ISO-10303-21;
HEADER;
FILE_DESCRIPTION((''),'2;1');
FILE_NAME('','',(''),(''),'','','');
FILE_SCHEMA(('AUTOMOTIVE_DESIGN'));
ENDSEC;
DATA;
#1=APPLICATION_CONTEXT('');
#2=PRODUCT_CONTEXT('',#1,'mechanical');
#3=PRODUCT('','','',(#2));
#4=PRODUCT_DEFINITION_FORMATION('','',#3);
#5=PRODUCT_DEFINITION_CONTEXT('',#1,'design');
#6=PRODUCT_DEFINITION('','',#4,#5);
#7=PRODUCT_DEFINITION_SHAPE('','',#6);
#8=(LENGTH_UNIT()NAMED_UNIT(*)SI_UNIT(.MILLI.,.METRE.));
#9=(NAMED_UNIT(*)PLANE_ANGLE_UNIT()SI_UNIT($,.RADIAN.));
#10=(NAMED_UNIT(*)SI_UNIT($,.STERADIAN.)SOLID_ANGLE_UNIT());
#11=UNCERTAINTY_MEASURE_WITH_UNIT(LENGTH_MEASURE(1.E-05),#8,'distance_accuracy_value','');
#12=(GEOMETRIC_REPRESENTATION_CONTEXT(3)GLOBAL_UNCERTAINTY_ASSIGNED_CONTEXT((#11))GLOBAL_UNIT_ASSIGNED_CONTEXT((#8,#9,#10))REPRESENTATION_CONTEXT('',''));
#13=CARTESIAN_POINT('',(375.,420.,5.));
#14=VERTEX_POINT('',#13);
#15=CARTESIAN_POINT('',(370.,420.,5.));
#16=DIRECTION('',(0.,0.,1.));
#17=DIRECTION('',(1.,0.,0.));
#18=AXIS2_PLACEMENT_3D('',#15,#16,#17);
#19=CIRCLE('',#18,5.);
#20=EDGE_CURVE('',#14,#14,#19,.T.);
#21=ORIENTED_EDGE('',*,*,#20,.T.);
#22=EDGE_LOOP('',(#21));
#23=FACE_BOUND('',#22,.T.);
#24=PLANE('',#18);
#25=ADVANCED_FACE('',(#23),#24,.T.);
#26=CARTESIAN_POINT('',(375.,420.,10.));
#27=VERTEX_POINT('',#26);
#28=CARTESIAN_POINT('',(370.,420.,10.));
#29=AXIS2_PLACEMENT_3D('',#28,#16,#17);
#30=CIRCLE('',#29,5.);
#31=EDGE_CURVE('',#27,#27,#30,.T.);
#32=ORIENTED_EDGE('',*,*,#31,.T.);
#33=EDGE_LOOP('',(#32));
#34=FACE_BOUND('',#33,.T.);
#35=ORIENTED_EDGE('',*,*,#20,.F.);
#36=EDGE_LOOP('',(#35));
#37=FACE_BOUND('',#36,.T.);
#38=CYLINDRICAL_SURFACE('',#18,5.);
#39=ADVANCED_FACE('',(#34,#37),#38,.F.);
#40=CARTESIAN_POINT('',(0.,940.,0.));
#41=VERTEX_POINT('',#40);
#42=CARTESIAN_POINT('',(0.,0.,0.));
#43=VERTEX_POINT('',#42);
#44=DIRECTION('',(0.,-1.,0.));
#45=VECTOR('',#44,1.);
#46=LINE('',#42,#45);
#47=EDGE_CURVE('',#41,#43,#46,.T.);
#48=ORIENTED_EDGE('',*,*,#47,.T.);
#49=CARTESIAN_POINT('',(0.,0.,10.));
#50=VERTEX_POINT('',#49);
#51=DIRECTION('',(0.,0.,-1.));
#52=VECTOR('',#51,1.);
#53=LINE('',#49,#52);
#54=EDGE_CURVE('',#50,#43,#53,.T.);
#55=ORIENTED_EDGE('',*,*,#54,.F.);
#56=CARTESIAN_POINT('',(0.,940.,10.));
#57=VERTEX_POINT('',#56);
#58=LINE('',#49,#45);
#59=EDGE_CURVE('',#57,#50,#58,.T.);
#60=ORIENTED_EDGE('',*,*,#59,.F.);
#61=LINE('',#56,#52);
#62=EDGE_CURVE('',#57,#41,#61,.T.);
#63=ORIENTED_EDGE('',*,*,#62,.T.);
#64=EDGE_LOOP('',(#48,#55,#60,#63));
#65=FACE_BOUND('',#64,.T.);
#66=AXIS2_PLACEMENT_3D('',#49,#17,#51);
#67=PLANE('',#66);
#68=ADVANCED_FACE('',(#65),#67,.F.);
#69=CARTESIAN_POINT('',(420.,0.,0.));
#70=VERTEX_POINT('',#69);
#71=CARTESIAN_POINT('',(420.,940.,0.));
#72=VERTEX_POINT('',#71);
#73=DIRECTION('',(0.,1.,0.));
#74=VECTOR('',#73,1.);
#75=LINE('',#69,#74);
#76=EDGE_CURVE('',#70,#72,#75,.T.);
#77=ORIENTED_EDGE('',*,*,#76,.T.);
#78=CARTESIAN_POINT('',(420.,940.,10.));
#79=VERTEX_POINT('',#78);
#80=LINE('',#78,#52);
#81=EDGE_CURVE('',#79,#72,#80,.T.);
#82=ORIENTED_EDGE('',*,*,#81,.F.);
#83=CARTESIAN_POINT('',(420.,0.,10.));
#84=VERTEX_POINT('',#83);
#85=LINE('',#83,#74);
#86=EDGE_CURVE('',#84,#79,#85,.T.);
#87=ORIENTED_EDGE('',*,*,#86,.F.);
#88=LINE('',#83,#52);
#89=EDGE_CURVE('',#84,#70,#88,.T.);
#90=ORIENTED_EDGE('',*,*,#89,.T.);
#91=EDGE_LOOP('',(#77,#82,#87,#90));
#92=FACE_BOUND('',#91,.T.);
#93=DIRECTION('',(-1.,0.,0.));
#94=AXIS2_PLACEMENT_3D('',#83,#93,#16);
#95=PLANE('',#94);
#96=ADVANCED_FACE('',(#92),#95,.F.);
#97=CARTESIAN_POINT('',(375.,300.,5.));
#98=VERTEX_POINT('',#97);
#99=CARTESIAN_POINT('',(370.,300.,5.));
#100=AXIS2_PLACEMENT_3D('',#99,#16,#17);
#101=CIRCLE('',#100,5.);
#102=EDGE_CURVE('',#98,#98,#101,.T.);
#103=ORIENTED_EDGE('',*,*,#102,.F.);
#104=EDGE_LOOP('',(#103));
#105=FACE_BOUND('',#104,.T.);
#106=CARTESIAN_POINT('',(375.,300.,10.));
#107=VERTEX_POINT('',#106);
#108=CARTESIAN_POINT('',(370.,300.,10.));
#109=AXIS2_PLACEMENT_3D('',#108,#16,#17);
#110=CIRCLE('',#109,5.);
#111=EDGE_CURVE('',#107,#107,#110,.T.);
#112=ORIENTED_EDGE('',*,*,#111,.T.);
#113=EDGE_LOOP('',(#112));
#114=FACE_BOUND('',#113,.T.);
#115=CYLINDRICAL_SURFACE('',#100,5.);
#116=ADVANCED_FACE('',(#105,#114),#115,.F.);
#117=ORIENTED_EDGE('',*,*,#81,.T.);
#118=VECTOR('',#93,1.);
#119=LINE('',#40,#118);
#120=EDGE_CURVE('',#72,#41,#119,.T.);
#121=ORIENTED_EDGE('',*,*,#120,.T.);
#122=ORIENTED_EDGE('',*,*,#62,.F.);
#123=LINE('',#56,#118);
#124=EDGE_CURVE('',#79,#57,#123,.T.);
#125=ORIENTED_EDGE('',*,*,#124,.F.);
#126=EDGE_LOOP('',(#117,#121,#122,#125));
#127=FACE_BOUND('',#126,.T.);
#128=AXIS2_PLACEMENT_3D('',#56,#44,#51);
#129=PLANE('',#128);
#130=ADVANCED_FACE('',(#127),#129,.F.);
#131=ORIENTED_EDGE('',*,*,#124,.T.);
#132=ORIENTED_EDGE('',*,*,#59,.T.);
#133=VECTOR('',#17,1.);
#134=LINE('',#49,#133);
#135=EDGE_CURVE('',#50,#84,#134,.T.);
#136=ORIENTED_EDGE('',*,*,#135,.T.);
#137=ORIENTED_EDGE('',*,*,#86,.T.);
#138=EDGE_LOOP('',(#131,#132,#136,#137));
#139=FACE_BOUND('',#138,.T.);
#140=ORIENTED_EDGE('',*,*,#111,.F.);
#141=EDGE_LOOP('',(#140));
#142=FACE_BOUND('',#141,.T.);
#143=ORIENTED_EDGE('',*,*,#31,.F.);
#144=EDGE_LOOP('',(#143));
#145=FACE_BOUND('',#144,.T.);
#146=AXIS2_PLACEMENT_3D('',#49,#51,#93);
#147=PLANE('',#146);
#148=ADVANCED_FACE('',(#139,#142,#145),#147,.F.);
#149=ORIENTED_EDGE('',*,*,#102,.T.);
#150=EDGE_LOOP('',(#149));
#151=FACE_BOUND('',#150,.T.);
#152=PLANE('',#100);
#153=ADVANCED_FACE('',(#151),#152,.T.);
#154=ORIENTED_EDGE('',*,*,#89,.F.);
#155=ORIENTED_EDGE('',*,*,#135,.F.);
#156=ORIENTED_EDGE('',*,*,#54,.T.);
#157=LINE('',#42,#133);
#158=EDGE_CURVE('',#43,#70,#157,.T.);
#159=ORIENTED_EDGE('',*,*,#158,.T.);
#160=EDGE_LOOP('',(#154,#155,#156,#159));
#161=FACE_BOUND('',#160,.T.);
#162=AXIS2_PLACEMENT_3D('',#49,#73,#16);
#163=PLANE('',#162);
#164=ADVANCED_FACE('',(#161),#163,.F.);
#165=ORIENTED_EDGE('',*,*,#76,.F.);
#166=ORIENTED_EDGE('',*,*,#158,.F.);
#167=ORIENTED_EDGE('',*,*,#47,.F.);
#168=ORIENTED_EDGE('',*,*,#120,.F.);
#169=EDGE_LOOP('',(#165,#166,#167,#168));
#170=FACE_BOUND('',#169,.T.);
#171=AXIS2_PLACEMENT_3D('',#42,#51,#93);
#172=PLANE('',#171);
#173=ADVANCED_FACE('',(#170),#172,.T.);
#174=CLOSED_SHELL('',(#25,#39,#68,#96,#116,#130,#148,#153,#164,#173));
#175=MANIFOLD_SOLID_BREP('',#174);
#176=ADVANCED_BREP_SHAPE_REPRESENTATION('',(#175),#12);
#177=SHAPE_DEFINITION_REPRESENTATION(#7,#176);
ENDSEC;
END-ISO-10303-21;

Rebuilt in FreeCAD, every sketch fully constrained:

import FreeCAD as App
import Part
import Sketcher

V = App.Vector

doc = App.newDocument("Part")
body = doc.addObject("PartDesign::Body", "Body")

sketch1 = doc.addObject("Sketcher::SketchObject", "Sketch")
body.addObject(sketch1)
sketch1.AttachmentSupport = (doc.XY_Plane, [""])
sketch1.MapMode = "FlatFace"
sketch1.addGeometry(Part.LineSegment(V(0, 940, 0), V(0, 0, 0)), False)
sketch1.addGeometry(Part.LineSegment(V(0, 0, 0), V(420, 0, 0)), False)
sketch1.addGeometry(Part.LineSegment(V(420, 0, 0), V(420, 940, 0)), False)
sketch1.addGeometry(Part.LineSegment(V(420, 940, 0), V(0, 940, 0)), False)
sketch1.addConstraint(Sketcher.Constraint("Coincident", 0, 2, 1, 1))
sketch1.addConstraint(Sketcher.Constraint("Coincident", 1, 2, 2, 1))
sketch1.addConstraint(Sketcher.Constraint("Coincident", 2, 2, 3, 1))
sketch1.addConstraint(Sketcher.Constraint("Coincident", 3, 2, 0, 1))
sketch1.addConstraint(Sketcher.Constraint("Vertical", 0))
sketch1.addConstraint(Sketcher.Constraint("Horizontal", 1))
sketch1.addConstraint(Sketcher.Constraint("Vertical", 2))
sketch1.addConstraint(Sketcher.Constraint("Horizontal", 3))
sketch1.addConstraint(Sketcher.Constraint("Coincident", 0, 2, -1, 1))
sketch1.addConstraint(Sketcher.Constraint("DistanceX", 1, 1, 1, 2, 420.0))
sketch1.addConstraint(Sketcher.Constraint("DistanceY", 0, 2, 0, 1, 940.0))
pad1 = doc.addObject("PartDesign::Pad", "Pad")
body.addObject(pad1)
pad1.Profile = sketch1
pad1.Length = 10

sketch2 = doc.addObject("Sketcher::SketchObject", "Sketch001")
body.addObject(sketch2)
sketch2.AttachmentSupport = (doc.XY_Plane, [""])
sketch2.MapMode = "FlatFace"
sketch2.AttachmentOffset = App.Placement(V(0, 0, 10), App.Rotation())
sketch2.addGeometry(Part.Circle(V(370, 420, 0), V(0, 0, 1), 5), False)
sketch2.addGeometry(Part.Circle(V(370, 300, 0), V(0, 0, 1), 5), False)
sketch2.addConstraint(Sketcher.Constraint("Equal", 0, 1))
sketch2.addConstraint(Sketcher.Constraint("Vertical", 0, 3, 1, 3))
sketch2.addConstraint(Sketcher.Constraint("Diameter", 0, 10.0))
sketch2.addConstraint(Sketcher.Constraint("DistanceX", -1, 1, 0, 3, 370.0))
sketch2.addConstraint(Sketcher.Constraint("DistanceY", -1, 1, 0, 3, 420.0))
sketch2.addConstraint(Sketcher.Constraint("DistanceY", -1, 1, 1, 3, 300.0))
pocket1 = doc.addObject("PartDesign::Pocket", "Pocket")
body.addObject(pocket1)
pocket1.Profile = sketch2
pocket1.Length = 5

doc.recompute()
